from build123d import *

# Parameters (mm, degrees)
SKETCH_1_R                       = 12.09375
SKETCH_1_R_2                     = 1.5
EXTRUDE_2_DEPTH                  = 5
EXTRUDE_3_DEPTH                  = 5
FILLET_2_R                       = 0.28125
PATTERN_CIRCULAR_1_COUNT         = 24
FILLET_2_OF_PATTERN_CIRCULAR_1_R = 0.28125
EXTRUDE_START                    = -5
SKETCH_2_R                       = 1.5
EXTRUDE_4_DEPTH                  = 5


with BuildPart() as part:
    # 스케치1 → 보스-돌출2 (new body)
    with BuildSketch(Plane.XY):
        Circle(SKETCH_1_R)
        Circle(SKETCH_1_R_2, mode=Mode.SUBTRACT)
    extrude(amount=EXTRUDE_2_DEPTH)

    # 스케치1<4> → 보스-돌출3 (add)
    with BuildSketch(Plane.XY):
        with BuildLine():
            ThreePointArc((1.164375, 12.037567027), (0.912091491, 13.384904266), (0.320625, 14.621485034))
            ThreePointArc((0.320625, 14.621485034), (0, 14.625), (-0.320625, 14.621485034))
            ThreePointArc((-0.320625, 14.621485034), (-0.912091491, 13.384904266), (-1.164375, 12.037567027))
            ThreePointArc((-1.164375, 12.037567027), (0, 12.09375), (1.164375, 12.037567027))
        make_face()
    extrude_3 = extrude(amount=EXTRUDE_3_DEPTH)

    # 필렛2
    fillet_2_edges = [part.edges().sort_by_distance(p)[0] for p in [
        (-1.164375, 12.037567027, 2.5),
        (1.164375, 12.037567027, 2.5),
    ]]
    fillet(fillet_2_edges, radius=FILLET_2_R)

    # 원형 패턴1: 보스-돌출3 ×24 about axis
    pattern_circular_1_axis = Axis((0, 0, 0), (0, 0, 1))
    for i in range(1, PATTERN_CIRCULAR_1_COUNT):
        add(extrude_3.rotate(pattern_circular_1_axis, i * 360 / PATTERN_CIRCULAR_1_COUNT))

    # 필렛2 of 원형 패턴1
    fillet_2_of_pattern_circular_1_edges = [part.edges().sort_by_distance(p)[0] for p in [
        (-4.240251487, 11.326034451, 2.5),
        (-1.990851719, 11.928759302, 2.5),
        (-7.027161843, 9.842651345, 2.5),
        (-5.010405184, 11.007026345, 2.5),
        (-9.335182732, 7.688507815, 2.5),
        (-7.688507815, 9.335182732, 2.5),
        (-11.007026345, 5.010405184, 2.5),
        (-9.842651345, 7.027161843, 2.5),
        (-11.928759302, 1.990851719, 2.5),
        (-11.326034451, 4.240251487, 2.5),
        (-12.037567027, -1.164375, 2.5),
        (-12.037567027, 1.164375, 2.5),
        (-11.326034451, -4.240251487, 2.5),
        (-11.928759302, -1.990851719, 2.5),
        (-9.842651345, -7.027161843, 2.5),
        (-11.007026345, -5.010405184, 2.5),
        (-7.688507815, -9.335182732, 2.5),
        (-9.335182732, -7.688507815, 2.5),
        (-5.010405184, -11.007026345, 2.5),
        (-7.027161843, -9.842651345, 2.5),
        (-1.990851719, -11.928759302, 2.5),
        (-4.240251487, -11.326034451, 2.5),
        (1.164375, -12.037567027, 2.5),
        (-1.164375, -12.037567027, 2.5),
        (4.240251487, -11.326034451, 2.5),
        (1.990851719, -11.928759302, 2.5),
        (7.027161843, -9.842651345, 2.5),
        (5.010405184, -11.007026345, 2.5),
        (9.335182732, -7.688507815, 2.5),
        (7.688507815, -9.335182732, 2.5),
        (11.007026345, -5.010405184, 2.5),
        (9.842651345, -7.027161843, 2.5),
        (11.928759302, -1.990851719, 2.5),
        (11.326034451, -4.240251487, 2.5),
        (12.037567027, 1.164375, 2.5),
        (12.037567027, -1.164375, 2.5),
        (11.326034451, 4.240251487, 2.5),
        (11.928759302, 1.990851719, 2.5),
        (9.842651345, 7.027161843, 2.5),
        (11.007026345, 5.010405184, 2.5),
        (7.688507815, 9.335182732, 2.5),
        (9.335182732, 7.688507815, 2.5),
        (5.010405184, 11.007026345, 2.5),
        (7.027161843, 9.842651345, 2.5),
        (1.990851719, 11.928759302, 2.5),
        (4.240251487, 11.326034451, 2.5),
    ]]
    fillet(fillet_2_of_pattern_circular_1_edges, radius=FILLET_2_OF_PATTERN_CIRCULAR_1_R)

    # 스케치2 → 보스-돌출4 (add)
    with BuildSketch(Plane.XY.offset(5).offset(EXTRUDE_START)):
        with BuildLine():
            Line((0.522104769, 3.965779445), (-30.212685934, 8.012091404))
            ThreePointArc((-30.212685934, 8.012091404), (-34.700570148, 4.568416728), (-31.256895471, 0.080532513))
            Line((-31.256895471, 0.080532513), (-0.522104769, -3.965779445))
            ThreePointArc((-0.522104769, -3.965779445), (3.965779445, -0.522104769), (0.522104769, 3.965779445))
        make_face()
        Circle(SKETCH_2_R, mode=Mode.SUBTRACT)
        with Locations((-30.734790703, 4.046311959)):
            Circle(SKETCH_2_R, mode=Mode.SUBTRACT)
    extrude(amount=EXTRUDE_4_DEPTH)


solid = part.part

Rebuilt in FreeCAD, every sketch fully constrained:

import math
import FreeCAD as App
import Part
import Sketcher
from FreeCAD import Vector
Q = App.Units.Quantity


def edges_at(feature, points):
    """Names of the edges that pass closest to the given points."""
    edges = feature.Shape.Edges
    near = lambda p: min(range(len(edges)), key=lambda i: edges[i].distToShape(Part.Vertex(*p))[0])
    return sorted({f"Edge{near(p) + 1}" for p in points})

doc = App.newDocument("Part")
body = doc.addObject("PartDesign::Body", "Body")

sketch1 = body.newObject("Sketcher::SketchObject", "Sketch")
sketch1.AttachmentSupport = (doc.getObject("XY_Plane"), [""])
sketch1.MapMode = "FlatFace"
sketch1.addGeometry(Part.Circle(Vector(0, 0, 0), Vector(0, 0, 1), 12.1), False)
sketch1.addGeometry(Part.Circle(Vector(0, 0, 0), Vector(0, 0, 1), 1.5), False)
sketch1.addConstraint(Sketcher.Constraint("Coincident", 0, 3, -1, 1))
sketch1.addConstraint(Sketcher.Constraint("Coincident", 1, 3, -1, 1))
sketch1.addConstraint(Sketcher.Constraint("Diameter", 1, Q("3 mm")))
sketch1.addConstraint(Sketcher.Constraint("Diameter", 0, Q("24.1875 mm")))
pad1 = body.newObject("PartDesign::Pad", "Pad")
pad1.Profile = sketch1
pad1.Length = 5

sketch2 = body.newObject("Sketcher::SketchObject", "Sketch001")
sketch2.AttachmentSupport = (doc.getObject("XY_Plane"), [""])
sketch2.MapMode = "FlatFace"
sketch2.addGeometry(Part.ArcOfCircle(Part.Circle(Vector(-4.1, 11.8, 0), Vector(0, 0, 1), 5.3), math.radians(3), math.radians(33)), False)
sketch2.addGeometry(Part.ArcOfCircle(Part.Circle(Vector(0, 0, 0), Vector(0, 0, 1), 14.6), math.radians(88.74), math.radians(91.26)), False)
sketch2.addGeometry(Part.ArcOfCircle(Part.Circle(Vector(4.1, 11.8, 0), Vector(0, 0, 1), 5.3), math.radians(147), math.radians(177)), False)
sketch2.addGeometry(Part.ArcOfCircle(Part.Circle(Vector(0, 0, 0), Vector(0, 0, 1), 12.1), math.radians(84.48), math.radians(95.52)), False)
sketch2.addConstraint(Sketcher.Constraint("Coincident", 0, 2, 1, 1))
sketch2.addConstraint(Sketcher.Constraint("Coincident", 1, 2, 2, 1))
sketch2.addConstraint(Sketcher.Constraint("Coincident", 2, 2, 3, 2))
sketch2.addConstraint(Sketcher.Constraint("Coincident", 3, 1, 0, 1))
sketch2.addConstraint(Sketcher.Constraint("Coincident", 1, 3, -1, 1))
sketch2.addConstraint(Sketcher.Constraint("Coincident", 3, 3, -1, 1))
sketch2.addConstraint(Sketcher.Constraint("Equal", 0, 2))
sketch2.addConstraint(Sketcher.Constraint("Symmetric", 0, 3, 2, 3, -2))
sketch2.addConstraint(Sketcher.Constraint("Radius", 1, Q("14.624999 mm")))
sketch2.addConstraint(Sketcher.Constraint("Radius", 3, Q("12.09375 mm")))
sketch2.addConstraint(Sketcher.Constraint("Radius", 0, Q("5.266035 mm")))
sketch2.addConstraint(Sketcher.Constraint("DistanceX", 2, 2, 0, 2, Q("1.485 mm")))
sketch2.addConstraint(Sketcher.Constraint("DistanceX", 0, 3, -1, 1, Q("4.093818 mm")))
pad2 = body.newObject("PartDesign::Pad", "Pad001")
pad2.Profile = sketch2
pad2.Length = 5
doc.recompute()

fillet = body.newObject("PartDesign::Fillet", "Fillet")
fillet.Base = (pad2, edges_at(pad2, [(-1.164, 12.038, 2.5), (1.164, 12.038, 2.5)]))
fillet.Radius = 0.28125
doc.recompute()

polarpattern = body.newObject("PartDesign::PolarPattern", "PolarPattern")
polarpattern.Originals = [pad2]
polarpattern.Axis = (doc.getObject("Z_Axis"), [""])
polarpattern.Angle = 360
polarpattern.Occurrences = 24
body.Tip = polarpattern
doc.recompute()

fillet2 = body.newObject("PartDesign::Fillet", "Fillet001")
fillet2.Base = (polarpattern, edges_at(polarpattern, [
    (-4.24, 11.326, 2.5),
    (-1.991, 11.929, 2.5),
    (-7.027, 9.843, 2.5),
    (-5.01, 11.007, 2.5),
    (-9.335, 7.689, 2.5),
    (-7.689, 9.335, 2.5),
    (-11.007, 5.01, 2.5),
    (-9.843, 7.027, 2.5),
    (-11.929, 1.991, 2.5),
    (-11.326, 4.24, 2.5),
    (-12.038, -1.164, 2.5),
    (-12.038, 1.164, 2.5),
    (-11.326, -4.24, 2.5),
    (-11.929, -1.991, 2.5),
    (-9.843, -7.027, 2.5),
    (-11.007, -5.01, 2.5),
    (-7.689, -9.335, 2.5),
    (-9.335, -7.689, 2.5),
    (-5.01, -11.007, 2.5),
    (-7.027, -9.843, 2.5),
    (-1.991, -11.929, 2.5),
    (-4.24, -11.326, 2.5),
    (1.164, -12.038, 2.5),
    (-1.164, -12.038, 2.5),
    (4.24, -11.326, 2.5),
    (1.991, -11.929, 2.5),
    (7.027, -9.843, 2.5),
    (5.01, -11.007, 2.5),
    (9.335, -7.689, 2.5),
    (7.689, -9.335, 2.5),
    (11.007, -5.01, 2.5),
    (9.843, -7.027, 2.5),
    (11.929, -1.991, 2.5),
    (11.326, -4.24, 2.5),
    (12.038, 1.164, 2.5),
    (12.038, -1.164, 2.5),
    (11.326, 4.24, 2.5),
    (11.929, 1.991, 2.5),
    (9.843, 7.027, 2.5),
    (11.007, 5.01, 2.5),
    (7.689, 9.335, 2.5),
    (9.335, 7.689, 2.5),
    (5.01, 11.007, 2.5),
    (7.027, 9.843, 2.5),
    (1.991, 11.929, 2.5),
    (4.24, 11.326, 2.5),
]))
fillet2.Radius = 0.28125

sketch3 = body.newObject("Sketcher::SketchObject", "Sketch002")
sketch3.AttachmentSupport = (doc.getObject("XY_Plane"), [""])
sketch3.MapMode = "FlatFace"
sketch3.addGeometry(Part.LineSegment(Vector(0.5, 4, 0), Vector(-30.2, 8, 0)), False)
sketch3.addGeometry(Part.ArcOfCircle(Part.Circle(Vector(-30.7, 4, 0), Vector(0, 0, 1), 4), math.radians(82), math.radians(263)), False)
sketch3.addGeometry(Part.LineSegment(Vector(-31.3, 0.1, 0), Vector(-0.5, -4, 0)), False)
sketch3.addGeometry(Part.ArcOfCircle(Part.Circle(Vector(0, 0, 0), Vector(0, 0, 1), 4), math.radians(-98), math.radians(82)), False)
sketch3.addGeometry(Part.Circle(Vector(0, 0, 0), Vector(0, 0, 1), 1.5), False)
sketch3.addGeometry(Part.Circle(Vector(-30.7, 4, 0), Vector(0, 0, 1), 1.5), False)
sketch3.addConstraint(Sketcher.Constraint("Tangent", 0, 2, 1, 1))
sketch3.addConstraint(Sketcher.Constraint("Tangent", 1, 2, 2, 1))
sketch3.addConstraint(Sketcher.Constraint("Tangent", 2, 2, 3, 1))
sketch3.addConstraint(Sketcher.Constraint("Tangent", 3, 2, 0, 1))
sketch3.addConstraint(Sketcher.Constraint("Coincident", 3, 3, -1, 1))
sketch3.addConstraint(Sketcher.Constraint("Coincident", 4, 3, -1, 1))
sketch3.addConstraint(Sketcher.Constraint("Coincident", 5, 3, 1, 3))
sketch3.addConstraint(Sketcher.Constraint("Equal", 1, 3))
sketch3.addConstraint(Sketcher.Constraint("Equal", 4, 5))
sketch3.addConstraint(Sketcher.Constraint("Diameter", 4, Q("3 mm")))
sketch3.addConstraint(Sketcher.Constraint("Radius", 1, Q("4 mm")))
sketch3.addConstraint(Sketcher.Constraint("Distance", 0, Q("31 mm")))
sketch3.addConstraint(Sketcher.Constraint("Angle", 0, Q("172.5 deg")))
pad3 = body.newObject("PartDesign::Pad", "Pad002")
pad3.Profile = sketch3
pad3.Length = 5

doc.recompute()
